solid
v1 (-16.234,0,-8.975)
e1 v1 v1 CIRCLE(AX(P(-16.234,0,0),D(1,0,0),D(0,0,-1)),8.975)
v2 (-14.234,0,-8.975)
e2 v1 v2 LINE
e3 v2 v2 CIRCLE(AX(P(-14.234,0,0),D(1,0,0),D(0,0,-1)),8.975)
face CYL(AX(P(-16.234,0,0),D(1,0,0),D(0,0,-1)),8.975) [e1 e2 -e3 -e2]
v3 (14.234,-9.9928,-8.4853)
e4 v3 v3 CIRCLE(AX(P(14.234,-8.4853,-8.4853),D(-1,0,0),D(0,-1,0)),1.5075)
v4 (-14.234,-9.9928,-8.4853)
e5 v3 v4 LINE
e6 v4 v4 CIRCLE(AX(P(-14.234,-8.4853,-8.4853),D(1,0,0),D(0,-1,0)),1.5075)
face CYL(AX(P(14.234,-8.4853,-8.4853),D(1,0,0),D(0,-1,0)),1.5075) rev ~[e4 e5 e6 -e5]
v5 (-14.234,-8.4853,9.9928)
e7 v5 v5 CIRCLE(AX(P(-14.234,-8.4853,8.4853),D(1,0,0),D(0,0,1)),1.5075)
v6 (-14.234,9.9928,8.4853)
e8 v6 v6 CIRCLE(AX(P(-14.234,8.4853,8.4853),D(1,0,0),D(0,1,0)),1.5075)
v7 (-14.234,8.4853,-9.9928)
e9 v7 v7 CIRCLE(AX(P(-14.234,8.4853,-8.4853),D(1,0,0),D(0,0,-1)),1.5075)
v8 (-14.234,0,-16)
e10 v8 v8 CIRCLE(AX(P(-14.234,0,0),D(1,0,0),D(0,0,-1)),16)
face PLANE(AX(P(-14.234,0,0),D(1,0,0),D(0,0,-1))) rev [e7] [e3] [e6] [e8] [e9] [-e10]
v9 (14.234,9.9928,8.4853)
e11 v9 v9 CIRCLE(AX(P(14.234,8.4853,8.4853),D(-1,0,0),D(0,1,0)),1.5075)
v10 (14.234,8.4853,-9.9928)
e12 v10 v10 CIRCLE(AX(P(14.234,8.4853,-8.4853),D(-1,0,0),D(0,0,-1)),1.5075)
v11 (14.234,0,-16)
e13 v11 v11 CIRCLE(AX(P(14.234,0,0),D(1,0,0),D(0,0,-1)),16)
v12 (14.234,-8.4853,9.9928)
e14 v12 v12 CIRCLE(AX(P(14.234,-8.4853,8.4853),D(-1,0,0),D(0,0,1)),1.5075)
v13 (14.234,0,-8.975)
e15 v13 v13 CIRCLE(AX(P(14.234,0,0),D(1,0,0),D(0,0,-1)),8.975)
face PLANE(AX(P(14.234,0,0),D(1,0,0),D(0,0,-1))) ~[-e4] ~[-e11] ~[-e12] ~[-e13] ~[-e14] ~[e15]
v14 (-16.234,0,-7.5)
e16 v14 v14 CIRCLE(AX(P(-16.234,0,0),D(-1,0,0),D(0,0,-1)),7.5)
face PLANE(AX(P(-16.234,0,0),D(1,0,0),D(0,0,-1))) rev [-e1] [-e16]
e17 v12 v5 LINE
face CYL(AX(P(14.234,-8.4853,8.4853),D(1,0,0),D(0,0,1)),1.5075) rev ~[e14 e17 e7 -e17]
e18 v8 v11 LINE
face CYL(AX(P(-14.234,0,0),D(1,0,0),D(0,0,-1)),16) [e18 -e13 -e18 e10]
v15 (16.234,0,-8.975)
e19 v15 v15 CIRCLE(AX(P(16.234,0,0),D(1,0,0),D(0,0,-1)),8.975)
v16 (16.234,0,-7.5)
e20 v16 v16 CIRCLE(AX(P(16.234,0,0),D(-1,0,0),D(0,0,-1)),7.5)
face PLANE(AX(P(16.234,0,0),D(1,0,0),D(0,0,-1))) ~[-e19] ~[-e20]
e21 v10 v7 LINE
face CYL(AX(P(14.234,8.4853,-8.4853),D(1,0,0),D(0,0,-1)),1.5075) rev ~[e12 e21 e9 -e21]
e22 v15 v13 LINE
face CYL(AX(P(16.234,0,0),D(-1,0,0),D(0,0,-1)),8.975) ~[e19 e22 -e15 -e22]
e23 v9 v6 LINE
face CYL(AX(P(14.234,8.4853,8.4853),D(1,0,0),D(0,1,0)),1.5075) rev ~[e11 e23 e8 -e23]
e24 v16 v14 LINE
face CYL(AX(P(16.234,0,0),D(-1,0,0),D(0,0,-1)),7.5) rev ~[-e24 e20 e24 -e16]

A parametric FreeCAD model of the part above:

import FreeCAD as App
import Part
import Sketcher
Q = App.Units.Quantity


def add_polygon(sketch, points):
    """Adds a closed chain of lines whose ends are joined by coincident constraints."""
    first, n = sketch.GeometryCount, len(points)
    for a, b in zip(points, points[1:] + points[:1]):
        sketch.addGeometry(Part.LineSegment(App.Vector(*a, 0), App.Vector(*b, 0)), False)
    for i in range(n):
        sketch.addConstraint(Sketcher.Constraint("Coincident", first + i, 2, first + (i + 1) % n, 1))

doc = App.newDocument("Part")
params = doc.addObject("Spreadsheet::Sheet", "Params")
for row, (alias, value) in enumerate([
    ("sketch1_width", "2 mm"),
    ("revolution_angle", "360 deg"),
    ("sketch3_diameter", "15 mm"),
    ("hole_diameter", "15 mm"),
], start=1):
    params.set(f"A{row}", alias)
    params.set(f"B{row}", "=" + value)
    params.setAlias(f"B{row}", alias)

body = doc.addObject("PartDesign::Body", "Body")

sketch1 = body.newObject("Sketcher::SketchObject", "Sketch")
sketch1.AttachmentSupport = (doc.getObject("XZ_Plane"), [""])
sketch1.MapMode = "FlatFace"
add_polygon(sketch1, [(-14.2, -16), (-14.2, -9), (-16.2, -9), (-16.2, 0), (16.2, 0), (16.2, -9), (14.2, -9), (14.2, -16)])
sketch1.addConstraint([
    Sketcher.Constraint("Vertical", 0),
    Sketcher.Constraint("Horizontal", 1),
    Sketcher.Constraint("Vertical", 2),
    Sketcher.Constraint("Horizontal", 3),
    Sketcher.Constraint("Vertical", 4),
    Sketcher.Constraint("Horizontal", 5),
    Sketcher.Constraint("Vertical", 6),
    Sketcher.Constraint("Horizontal", 7),
    Sketcher.Constraint("Symmetric", 2, 2, 3, 2, -1, 1),
    Sketcher.Constraint("Symmetric", 0, 2, 5, 2, -2),
    Sketcher.Constraint("DistanceX", 1, 2, 1, 1, Q("2 mm")),
    Sketcher.Constraint("DistanceY", 6, 2, -1, 1, Q("16 mm")),
    Sketcher.Constraint("DistanceX", 3, 1, 3, 2, Q("32.468 mm")),
    Sketcher.Constraint("DistanceY", 2, 1, 2, 2, Q("8.975 mm")),
])
sketch1.setExpression("Constraints[18]", "Params.sketch1_width")
revolution = body.newObject("PartDesign::Revolution", "Revolution")
revolution.Profile = sketch1
revolution.ReferenceAxis = (sketch1, ["H_Axis"])
revolution.setExpression("Angle", "Params.revolution_angle")

sketch2 = body.newObject("Sketcher::SketchObject", "Sketch001")
sketch2.AttachmentSupport = (doc.getObject("YZ_Plane"), [""])
sketch2.MapMode = "FlatFace"
sketch2.AttachmentOffset = App.Placement(App.Vector(0, 0, 14.234), App.Rotation())
sketch2.addGeometry(Part.Circle(App.Vector(8.5, -8.5, 0), App.Vector(0, 0, 1), 1.5), False)
sketch2.addConstraint([
    Sketcher.Constraint("Diameter", 0, Q("3.015 mm")),
    Sketcher.Constraint("DistanceX", -1, 1, 0, 3, Q("8.4853 mm")),
    Sketcher.Constraint("DistanceY", 0, 3, -1, 1, Q("8.4853 mm")),
])
pocket1 = body.newObject("PartDesign::Pocket", "Pocket")
pocket1.Profile = sketch2
pocket1.Type = "ThroughAll"

sketch3 = body.newObject("Sketcher::SketchObject", "Sketch002")
sketch3.AttachmentSupport = (doc.getObject("YZ_Plane"), [""])
sketch3.MapMode = "FlatFace"
sketch3.AttachmentOffset = App.Placement(App.Vector(0, 0, 16.234), App.Rotation())
sketch3.addGeometry(Part.Circle(App.Vector(0, 0, 0), App.Vector(0, 0, 1), 8), False)
sketch3.addConstraint([
    Sketcher.Constraint("Coincident", 0, 3, -1, 1),
    Sketcher.Constraint("Diameter", 0, Q("15 mm")),
])
sketch3.setExpression("Constraints[1]", "Params.sketch3_diameter")
doc.recompute()
hole = body.newObject("PartDesign::Hole", "Hole")
hole.Profile = sketch3
hole.ThreadType = "None"
hole.setExpression("Diameter", "Params.hole_diameter")
hole.DepthType = "ThroughAll"
doc.recompute()

polarpattern = body.newObject("PartDesign::PolarPattern", "PolarPattern")
polarpattern.Originals = [pocket1]
polarpattern.Axis = (doc.getObject("X_Axis"), [""])
polarpattern.Angle = 360
polarpattern.Occurrences = 4
body.Tip = polarpattern

doc.recompute()
